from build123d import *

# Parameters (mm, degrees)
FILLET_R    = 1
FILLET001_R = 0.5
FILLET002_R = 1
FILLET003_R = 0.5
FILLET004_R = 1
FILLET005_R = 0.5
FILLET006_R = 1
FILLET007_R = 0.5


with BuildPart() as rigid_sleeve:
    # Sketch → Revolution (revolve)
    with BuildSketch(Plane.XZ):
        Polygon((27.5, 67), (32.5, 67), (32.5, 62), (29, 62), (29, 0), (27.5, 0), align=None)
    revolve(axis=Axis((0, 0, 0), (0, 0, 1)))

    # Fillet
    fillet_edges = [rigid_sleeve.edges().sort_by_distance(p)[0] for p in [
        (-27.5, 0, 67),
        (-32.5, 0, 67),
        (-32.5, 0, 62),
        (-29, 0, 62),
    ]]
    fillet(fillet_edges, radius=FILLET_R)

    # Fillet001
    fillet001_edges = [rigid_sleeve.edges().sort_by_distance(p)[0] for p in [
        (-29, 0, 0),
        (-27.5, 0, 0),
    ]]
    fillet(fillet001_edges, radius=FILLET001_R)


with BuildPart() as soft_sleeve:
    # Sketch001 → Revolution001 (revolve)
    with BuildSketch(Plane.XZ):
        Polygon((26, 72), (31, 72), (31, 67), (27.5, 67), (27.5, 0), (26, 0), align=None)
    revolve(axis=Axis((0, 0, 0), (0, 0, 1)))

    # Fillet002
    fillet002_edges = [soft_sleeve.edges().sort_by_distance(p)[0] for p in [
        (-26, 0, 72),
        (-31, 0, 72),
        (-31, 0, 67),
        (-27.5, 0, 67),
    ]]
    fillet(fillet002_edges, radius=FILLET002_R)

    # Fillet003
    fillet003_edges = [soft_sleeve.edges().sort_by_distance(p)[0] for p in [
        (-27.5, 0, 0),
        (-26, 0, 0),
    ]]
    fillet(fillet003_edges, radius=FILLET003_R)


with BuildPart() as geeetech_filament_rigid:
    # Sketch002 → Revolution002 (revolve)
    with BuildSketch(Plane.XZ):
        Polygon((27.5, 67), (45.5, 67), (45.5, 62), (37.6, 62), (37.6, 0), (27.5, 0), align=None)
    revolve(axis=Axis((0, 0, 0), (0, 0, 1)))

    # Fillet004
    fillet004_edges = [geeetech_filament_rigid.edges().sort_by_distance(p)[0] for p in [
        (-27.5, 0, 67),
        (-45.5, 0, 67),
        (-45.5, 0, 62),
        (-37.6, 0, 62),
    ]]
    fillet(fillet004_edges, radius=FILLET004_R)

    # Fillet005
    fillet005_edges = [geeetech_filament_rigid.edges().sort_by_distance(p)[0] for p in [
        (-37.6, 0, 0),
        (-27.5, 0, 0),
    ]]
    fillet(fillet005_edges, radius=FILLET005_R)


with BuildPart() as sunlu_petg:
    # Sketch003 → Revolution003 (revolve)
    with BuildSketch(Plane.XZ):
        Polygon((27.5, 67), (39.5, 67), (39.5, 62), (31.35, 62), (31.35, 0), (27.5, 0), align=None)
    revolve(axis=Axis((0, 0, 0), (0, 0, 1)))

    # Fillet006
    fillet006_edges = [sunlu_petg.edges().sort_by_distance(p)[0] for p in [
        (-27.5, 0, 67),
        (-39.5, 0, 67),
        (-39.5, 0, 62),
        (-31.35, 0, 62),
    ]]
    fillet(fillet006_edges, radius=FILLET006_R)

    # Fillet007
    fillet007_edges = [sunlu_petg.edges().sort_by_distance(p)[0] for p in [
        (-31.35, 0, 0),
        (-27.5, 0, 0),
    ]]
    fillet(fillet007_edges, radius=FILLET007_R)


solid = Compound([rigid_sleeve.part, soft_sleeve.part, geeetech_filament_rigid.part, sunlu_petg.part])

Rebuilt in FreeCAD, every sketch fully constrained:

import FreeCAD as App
import Part
import Sketcher


def edges_at(feature, points):
    """Names of the edges that pass closest to the given points."""
    edges = feature.Shape.Edges
    near = lambda p: min(range(len(edges)), key=lambda i: edges[i].distToShape(Part.Vertex(*p))[0])
    return sorted({f"Edge{near(p) + 1}" for p in points})

doc = App.newDocument("Part")
body = doc.addObject("PartDesign::Body", "Body")

# Sketch on XZ plane
sketch1 = body.newObject("Sketcher::SketchObject", "Sketch")
sketch1.AttachmentSupport = (doc.getObject("XZ_Plane"), [""])
sketch1.MapMode = "FlatFace"
sketch1.addGeometry(Part.LineSegment(App.Vector(32.5, 67, 0), App.Vector(27.5, 67, 0)), False)
sketch1.addGeometry(Part.LineSegment(App.Vector(27.5, 67, 0), App.Vector(27.5, 0, 0)), False)
sketch1.addGeometry(Part.LineSegment(App.Vector(27.5, 0, 0), App.Vector(29, 0, 0)), False)
sketch1.addGeometry(Part.LineSegment(App.Vector(29, 0, 0), App.Vector(29, 62, 0)), False)
sketch1.addGeometry(Part.LineSegment(App.Vector(29, 62, 0), App.Vector(32.5, 62, 0)), False)
sketch1.addGeometry(Part.LineSegment(App.Vector(32.5, 62, 0), App.Vector(32.5, 67, 0)), False)
sketch1.addConstraint(Sketcher.Constraint("Coincident", 0, 2, 1, 1))
sketch1.addConstraint(Sketcher.Constraint("Coincident", 1, 2, 2, 1))
sketch1.addConstraint(Sketcher.Constraint("Coincident", 2, 2, 3, 1))
sketch1.addConstraint(Sketcher.Constraint("Coincident", 3, 2, 4, 1))
sketch1.addConstraint(Sketcher.Constraint("Coincident", 4, 2, 5, 1))
sketch1.addConstraint(Sketcher.Constraint("Coincident", 5, 2, 0, 1))
sketch1.addConstraint(Sketcher.Constraint("Horizontal", 0))
sketch1.addConstraint(Sketcher.Constraint("Vertical", 1))
sketch1.addConstraint(Sketcher.Constraint("Horizontal", 2))
sketch1.addConstraint(Sketcher.Constraint("Vertical", 3))
sketch1.addConstraint(Sketcher.Constraint("Horizontal", 4))
sketch1.addConstraint(Sketcher.Constraint("Vertical", 5))
sketch1.addConstraint(Sketcher.Constraint("PointOnObject", 1, 2, -1))
sketch1.addConstraint(Sketcher.Constraint("Equal", 0, 5))
sketch1.addConstraint(Sketcher.Constraint("DistanceX", 0, 2, 0, 1, 5.0))
sketch1.addConstraint(Sketcher.Constraint("DistanceY", 1, 2, 1, 1, 67.0))
sketch1.addConstraint(Sketcher.Constraint("DistanceX", 2, 1, 2, 2, 1.5))
sketch1.addConstraint(Sketcher.Constraint("DistanceX", -1, 1, 2, 2, 29.0))
revolution = body.newObject("PartDesign::Revolution", "Revolution")
revolution.Profile = sketch1
revolution.ReferenceAxis = (sketch1, ["V_Axis"])
revolution.Angle = 360
doc.recompute()

fillet = body.newObject("PartDesign::Fillet", "Fillet")
fillet.Base = (revolution, edges_at(revolution, [
    (-27.5, 0, 67),
    (-32.5, 0, 67),
    (-32.5, 0, 62),
    (-29, 0, 62),
]))
fillet.Radius = 1
doc.recompute()

fillet2 = body.newObject("PartDesign::Fillet", "Fillet001")
fillet2.Base = (fillet, edges_at(fillet, [(-29, 0, 0), (-27.5, 0, 0)]))
fillet2.Radius = 0.5
body2 = doc.addObject("PartDesign::Body", "Body001")

# Sketch on XZ plane
sketch2 = body2.newObject("Sketcher::SketchObject", "Sketch001")
sketch2.AttachmentSupport = (doc.getObject("XZ_Plane001"), [""])
sketch2.MapMode = "FlatFace"
sketch2.addGeometry(Part.LineSegment(App.Vector(31, 72, 0), App.Vector(26, 72, 0)), False)
sketch2.addGeometry(Part.LineSegment(App.Vector(26, 72, 0), App.Vector(26, 0, 0)), False)
sketch2.addGeometry(Part.LineSegment(App.Vector(26, 0, 0), App.Vector(27.5, 0, 0)), False)
sketch2.addGeometry(Part.LineSegment(App.Vector(27.5, 0, 0), App.Vector(27.5, 67, 0)), False)
sketch2.addGeometry(Part.LineSegment(App.Vector(27.5, 67, 0), App.Vector(31, 67, 0)), False)
sketch2.addGeometry(Part.LineSegment(App.Vector(31, 67, 0), App.Vector(31, 72, 0)), False)
sketch2.addConstraint(Sketcher.Constraint("Coincident", 0, 2, 1, 1))
sketch2.addConstraint(Sketcher.Constraint("Coincident", 1, 2, 2, 1))
sketch2.addConstraint(Sketcher.Constraint("Coincident", 2, 2, 3, 1))
sketch2.addConstraint(Sketcher.Constraint("Coincident", 3, 2, 4, 1))
sketch2.addConstraint(Sketcher.Constraint("Coincident", 4, 2, 5, 1))
sketch2.addConstraint(Sketcher.Constraint("Coincident", 5, 2, 0, 1))
sketch2.addConstraint(Sketcher.Constraint("Horizontal", 0))
sketch2.addConstraint(Sketcher.Constraint("Vertical", 1))
sketch2.addConstraint(Sketcher.Constraint("Horizontal", 2))
sketch2.addConstraint(Sketcher.Constraint("Vertical", 3))
sketch2.addConstraint(Sketcher.Constraint("Horizontal", 4))
sketch2.addConstraint(Sketcher.Constraint("Vertical", 5))
sketch2.addConstraint(Sketcher.Constraint("PointOnObject", 1, 2, -1))
sketch2.addConstraint(Sketcher.Constraint("Equal", 0, 5))
sketch2.addConstraint(Sketcher.Constraint("DistanceX", 0, 2, 0, 1, 5.0))
sketch2.addConstraint(Sketcher.Constraint("DistanceY", 1, 2, 1, 1, 72.0))
sketch2.addConstraint(Sketcher.Constraint("DistanceX", 2, 1, 2, 2, 1.5))
sketch2.addConstraint(Sketcher.Constraint("DistanceX", -1, 1, 0, 2, 26.0))
revolution2 = body2.newObject("PartDesign::Revolution", "Revolution001")
revolution2.Profile = sketch2
revolution2.ReferenceAxis = (sketch2, ["V_Axis"])
revolution2.Angle = 360
doc.recompute()

fillet3 = body2.newObject("PartDesign::Fillet", "Fillet002")
fillet3.Base = (revolution2, edges_at(revolution2, [
    (-26, 0, 72),
    (-31, 0, 72),
    (-31, 0, 67),
    (-27.5, 0, 67),
]))
fillet3.Radius = 1
doc.recompute()

fillet4 = body2.newObject("PartDesign::Fillet", "Fillet003")
fillet4.Base = (fillet3, edges_at(fillet3, [(-27.5, 0, 0), (-26, 0, 0)]))
fillet4.Radius = 0.5
body3 = doc.addObject("PartDesign::Body", "Body002")

# Sketch on XZ plane
sketch3 = body3.newObject("Sketcher::SketchObject", "Sketch002")
sketch3.AttachmentSupport = (doc.getObject("XZ_Plane002"), [""])
sketch3.MapMode = "FlatFace"
sketch3.addGeometry(Part.LineSegment(App.Vector(46, 67, 0), App.Vector(28, 67, 0)), False)
sketch3.addGeometry(Part.LineSegment(App.Vector(28, 67, 0), App.Vector(28, 0, 0)), False)
sketch3.addGeometry(Part.LineSegment(App.Vector(28, 0, 0), App.Vector(38, 0, 0)), False)
sketch3.addGeometry(Part.LineSegment(App.Vector(38, 0, 0), App.Vector(38, 62, 0)), False)
sketch3.addGeometry(Part.LineSegment(App.Vector(38, 62, 0), App.Vector(46, 62, 0)), False)
sketch3.addGeometry(Part.LineSegment(App.Vector(46, 62, 0), App.Vector(46, 67, 0)), False)
sketch3.addConstraint(Sketcher.Constraint("Coincident", 0, 2, 1, 1))
sketch3.addConstraint(Sketcher.Constraint("Coincident", 1, 2, 2, 1))
sketch3.addConstraint(Sketcher.Constraint("Coincident", 2, 2, 3, 1))
sketch3.addConstraint(Sketcher.Constraint("Coincident", 3, 2, 4, 1))
sketch3.addConstraint(Sketcher.Constraint("Coincident", 4, 2, 5, 1))
sketch3.addConstraint(Sketcher.Constraint("Coincident", 5, 2, 0, 1))
sketch3.addConstraint(Sketcher.Constraint("Horizontal", 0))
sketch3.addConstraint(Sketcher.Constraint("Vertical", 1))
sketch3.addConstraint(Sketcher.Constraint("Horizontal", 2))
sketch3.addConstraint(Sketcher.Constraint("Vertical", 3))
sketch3.addConstraint(Sketcher.Constraint("Horizontal", 4))
sketch3.addConstraint(Sketcher.Constraint("Vertical", 5))
sketch3.addConstraint(Sketcher.Constraint("PointOnObject", 1, 2, -1))
sketch3.addConstraint(Sketcher.Constraint("DistanceX", 0, 2, 0, 1, 18.0))
sketch3.addConstraint(Sketcher.Constraint("DistanceY", 1, 2, 1, 1, 67.0))
sketch3.addConstraint(Sketcher.Constraint("DistanceY", 3, 1, 3, 2, 62.0))
sketch3.addConstraint(Sketcher.Constraint("DistanceX", 2, 1, 2, 2, 10.1))
sketch3.addConstraint(Sketcher.Constraint("DistanceX", -1, 1, 0, 2, 27.5))
revolution3 = body3.newObject("PartDesign::Revolution", "Revolution002")
revolution3.Profile = sketch3
revolution3.ReferenceAxis = (sketch3, ["V_Axis"])
revolution3.Angle = 360
doc.recompute()

fillet5 = body3.newObject("PartDesign::Fillet", "Fillet004")
fillet5.Base = (revolution3, edges_at(revolution3, [
    (-27.5, 0, 67),
    (-45.5, 0, 67),
    (-45.5, 0, 62),
    (-37.6, 0, 62),
]))
fillet5.Radius = 1
doc.recompute()

fillet6 = body3.newObject("PartDesign::Fillet", "Fillet005")
fillet6.Base = (fillet5, edges_at(fillet5, [(-37.6, 0, 0), (-27.5, 0, 0)]))
fillet6.Radius = 0.5
body4 = doc.addObject("PartDesign::Body", "Body003")

# Sketch on XZ plane
sketch4 = body4.newObject("Sketcher::SketchObject", "Sketch003")
sketch4.AttachmentSupport = (doc.getObject("XZ_Plane003"), [""])
sketch4.MapMode = "FlatFace"
sketch4.addGeometry(Part.LineSegment(App.Vector(39.5, 67, 0), App.Vector(27.5, 67, 0)), False)
sketch4.addGeometry(Part.LineSegment(App.Vector(27.5, 67, 0), App.Vector(27.5, 0, 0)), False)
sketch4.addGeometry(Part.LineSegment(App.Vector(27.5, 0, 0), App.Vector(31.4, 0, 0)), False)
sketch4.addGeometry(Part.LineSegment(App.Vector(31.4, 0, 0), App.Vector(31.4, 62, 0)), False)
sketch4.addGeometry(Part.LineSegment(App.Vector(31.4, 62, 0), App.Vector(39.5, 62, 0)), False)
sketch4.addGeometry(Part.LineSegment(App.Vector(39.5, 62, 0), App.Vector(39.5, 67, 0)), False)
sketch4.addConstraint(Sketcher.Constraint("Coincident", 0, 2, 1, 1))
sketch4.addConstraint(Sketcher.Constraint("Coincident", 1, 2, 2, 1))
sketch4.addConstraint(Sketcher.Constraint("Coincident", 2, 2, 3, 1))
sketch4.addConstraint(Sketcher.Constraint("Coincident", 3, 2, 4, 1))
sketch4.addConstraint(Sketcher.Constraint("Coincident", 4, 2, 5, 1))
sketch4.addConstraint(Sketcher.Constraint("Coincident", 5, 2, 0, 1))
sketch4.addConstraint(Sketcher.Constraint("Horizontal", 0))
sketch4.addConstraint(Sketcher.Constraint("Vertical", 1))
sketch4.addConstraint(Sketcher.Constraint("Horizontal", 2))
sketch4.addConstraint(Sketcher.Constraint("Vertical", 3))
sketch4.addConstraint(Sketcher.Constraint("Horizontal", 4))
sketch4.addConstraint(Sketcher.Constraint("Vertical", 5))
sketch4.addConstraint(Sketcher.Constraint("PointOnObject", 1, 2, -1))
sketch4.addConstraint(Sketcher.Constraint("DistanceX", 0, 2, 0, 1, 12.0))
sketch4.addConstraint(Sketcher.Constraint("DistanceY", 1, 2, 1, 1, 67.0))
sketch4.addConstraint(Sketcher.Constraint("DistanceY", 3, 1, 3, 2, 62.0))
sketch4.addConstraint(Sketcher.Constraint("DistanceX", 2, 1, 2, 2, 3.85))
sketch4.addConstraint(Sketcher.Constraint("DistanceX", -1, 1, 0, 2, 27.5))
revolution4 = body4.newObject("PartDesign::Revolution", "Revolution003")
revolution4.Profile = sketch4
revolution4.ReferenceAxis = (sketch4, ["V_Axis"])
revolution4.Angle = 360
doc.recompute()

fillet7 = body4.newObject("PartDesign::Fillet", "Fillet006")
fillet7.Base = (revolution4, edges_at(revolution4, [
    (-27.5, 0, 67),
    (-39.5, 0, 67),
    (-39.5, 0, 62),
    (-31.35, 0, 62),
]))
fillet7.Radius = 1
doc.recompute()

fillet8 = body4.newObject("PartDesign::Fillet", "Fillet007")
fillet8.Base = (fillet7, edges_at(fillet7, [(-31.35, 0, 0), (-27.5, 0, 0)]))
fillet8.Radius = 0.5

doc.recompute()
